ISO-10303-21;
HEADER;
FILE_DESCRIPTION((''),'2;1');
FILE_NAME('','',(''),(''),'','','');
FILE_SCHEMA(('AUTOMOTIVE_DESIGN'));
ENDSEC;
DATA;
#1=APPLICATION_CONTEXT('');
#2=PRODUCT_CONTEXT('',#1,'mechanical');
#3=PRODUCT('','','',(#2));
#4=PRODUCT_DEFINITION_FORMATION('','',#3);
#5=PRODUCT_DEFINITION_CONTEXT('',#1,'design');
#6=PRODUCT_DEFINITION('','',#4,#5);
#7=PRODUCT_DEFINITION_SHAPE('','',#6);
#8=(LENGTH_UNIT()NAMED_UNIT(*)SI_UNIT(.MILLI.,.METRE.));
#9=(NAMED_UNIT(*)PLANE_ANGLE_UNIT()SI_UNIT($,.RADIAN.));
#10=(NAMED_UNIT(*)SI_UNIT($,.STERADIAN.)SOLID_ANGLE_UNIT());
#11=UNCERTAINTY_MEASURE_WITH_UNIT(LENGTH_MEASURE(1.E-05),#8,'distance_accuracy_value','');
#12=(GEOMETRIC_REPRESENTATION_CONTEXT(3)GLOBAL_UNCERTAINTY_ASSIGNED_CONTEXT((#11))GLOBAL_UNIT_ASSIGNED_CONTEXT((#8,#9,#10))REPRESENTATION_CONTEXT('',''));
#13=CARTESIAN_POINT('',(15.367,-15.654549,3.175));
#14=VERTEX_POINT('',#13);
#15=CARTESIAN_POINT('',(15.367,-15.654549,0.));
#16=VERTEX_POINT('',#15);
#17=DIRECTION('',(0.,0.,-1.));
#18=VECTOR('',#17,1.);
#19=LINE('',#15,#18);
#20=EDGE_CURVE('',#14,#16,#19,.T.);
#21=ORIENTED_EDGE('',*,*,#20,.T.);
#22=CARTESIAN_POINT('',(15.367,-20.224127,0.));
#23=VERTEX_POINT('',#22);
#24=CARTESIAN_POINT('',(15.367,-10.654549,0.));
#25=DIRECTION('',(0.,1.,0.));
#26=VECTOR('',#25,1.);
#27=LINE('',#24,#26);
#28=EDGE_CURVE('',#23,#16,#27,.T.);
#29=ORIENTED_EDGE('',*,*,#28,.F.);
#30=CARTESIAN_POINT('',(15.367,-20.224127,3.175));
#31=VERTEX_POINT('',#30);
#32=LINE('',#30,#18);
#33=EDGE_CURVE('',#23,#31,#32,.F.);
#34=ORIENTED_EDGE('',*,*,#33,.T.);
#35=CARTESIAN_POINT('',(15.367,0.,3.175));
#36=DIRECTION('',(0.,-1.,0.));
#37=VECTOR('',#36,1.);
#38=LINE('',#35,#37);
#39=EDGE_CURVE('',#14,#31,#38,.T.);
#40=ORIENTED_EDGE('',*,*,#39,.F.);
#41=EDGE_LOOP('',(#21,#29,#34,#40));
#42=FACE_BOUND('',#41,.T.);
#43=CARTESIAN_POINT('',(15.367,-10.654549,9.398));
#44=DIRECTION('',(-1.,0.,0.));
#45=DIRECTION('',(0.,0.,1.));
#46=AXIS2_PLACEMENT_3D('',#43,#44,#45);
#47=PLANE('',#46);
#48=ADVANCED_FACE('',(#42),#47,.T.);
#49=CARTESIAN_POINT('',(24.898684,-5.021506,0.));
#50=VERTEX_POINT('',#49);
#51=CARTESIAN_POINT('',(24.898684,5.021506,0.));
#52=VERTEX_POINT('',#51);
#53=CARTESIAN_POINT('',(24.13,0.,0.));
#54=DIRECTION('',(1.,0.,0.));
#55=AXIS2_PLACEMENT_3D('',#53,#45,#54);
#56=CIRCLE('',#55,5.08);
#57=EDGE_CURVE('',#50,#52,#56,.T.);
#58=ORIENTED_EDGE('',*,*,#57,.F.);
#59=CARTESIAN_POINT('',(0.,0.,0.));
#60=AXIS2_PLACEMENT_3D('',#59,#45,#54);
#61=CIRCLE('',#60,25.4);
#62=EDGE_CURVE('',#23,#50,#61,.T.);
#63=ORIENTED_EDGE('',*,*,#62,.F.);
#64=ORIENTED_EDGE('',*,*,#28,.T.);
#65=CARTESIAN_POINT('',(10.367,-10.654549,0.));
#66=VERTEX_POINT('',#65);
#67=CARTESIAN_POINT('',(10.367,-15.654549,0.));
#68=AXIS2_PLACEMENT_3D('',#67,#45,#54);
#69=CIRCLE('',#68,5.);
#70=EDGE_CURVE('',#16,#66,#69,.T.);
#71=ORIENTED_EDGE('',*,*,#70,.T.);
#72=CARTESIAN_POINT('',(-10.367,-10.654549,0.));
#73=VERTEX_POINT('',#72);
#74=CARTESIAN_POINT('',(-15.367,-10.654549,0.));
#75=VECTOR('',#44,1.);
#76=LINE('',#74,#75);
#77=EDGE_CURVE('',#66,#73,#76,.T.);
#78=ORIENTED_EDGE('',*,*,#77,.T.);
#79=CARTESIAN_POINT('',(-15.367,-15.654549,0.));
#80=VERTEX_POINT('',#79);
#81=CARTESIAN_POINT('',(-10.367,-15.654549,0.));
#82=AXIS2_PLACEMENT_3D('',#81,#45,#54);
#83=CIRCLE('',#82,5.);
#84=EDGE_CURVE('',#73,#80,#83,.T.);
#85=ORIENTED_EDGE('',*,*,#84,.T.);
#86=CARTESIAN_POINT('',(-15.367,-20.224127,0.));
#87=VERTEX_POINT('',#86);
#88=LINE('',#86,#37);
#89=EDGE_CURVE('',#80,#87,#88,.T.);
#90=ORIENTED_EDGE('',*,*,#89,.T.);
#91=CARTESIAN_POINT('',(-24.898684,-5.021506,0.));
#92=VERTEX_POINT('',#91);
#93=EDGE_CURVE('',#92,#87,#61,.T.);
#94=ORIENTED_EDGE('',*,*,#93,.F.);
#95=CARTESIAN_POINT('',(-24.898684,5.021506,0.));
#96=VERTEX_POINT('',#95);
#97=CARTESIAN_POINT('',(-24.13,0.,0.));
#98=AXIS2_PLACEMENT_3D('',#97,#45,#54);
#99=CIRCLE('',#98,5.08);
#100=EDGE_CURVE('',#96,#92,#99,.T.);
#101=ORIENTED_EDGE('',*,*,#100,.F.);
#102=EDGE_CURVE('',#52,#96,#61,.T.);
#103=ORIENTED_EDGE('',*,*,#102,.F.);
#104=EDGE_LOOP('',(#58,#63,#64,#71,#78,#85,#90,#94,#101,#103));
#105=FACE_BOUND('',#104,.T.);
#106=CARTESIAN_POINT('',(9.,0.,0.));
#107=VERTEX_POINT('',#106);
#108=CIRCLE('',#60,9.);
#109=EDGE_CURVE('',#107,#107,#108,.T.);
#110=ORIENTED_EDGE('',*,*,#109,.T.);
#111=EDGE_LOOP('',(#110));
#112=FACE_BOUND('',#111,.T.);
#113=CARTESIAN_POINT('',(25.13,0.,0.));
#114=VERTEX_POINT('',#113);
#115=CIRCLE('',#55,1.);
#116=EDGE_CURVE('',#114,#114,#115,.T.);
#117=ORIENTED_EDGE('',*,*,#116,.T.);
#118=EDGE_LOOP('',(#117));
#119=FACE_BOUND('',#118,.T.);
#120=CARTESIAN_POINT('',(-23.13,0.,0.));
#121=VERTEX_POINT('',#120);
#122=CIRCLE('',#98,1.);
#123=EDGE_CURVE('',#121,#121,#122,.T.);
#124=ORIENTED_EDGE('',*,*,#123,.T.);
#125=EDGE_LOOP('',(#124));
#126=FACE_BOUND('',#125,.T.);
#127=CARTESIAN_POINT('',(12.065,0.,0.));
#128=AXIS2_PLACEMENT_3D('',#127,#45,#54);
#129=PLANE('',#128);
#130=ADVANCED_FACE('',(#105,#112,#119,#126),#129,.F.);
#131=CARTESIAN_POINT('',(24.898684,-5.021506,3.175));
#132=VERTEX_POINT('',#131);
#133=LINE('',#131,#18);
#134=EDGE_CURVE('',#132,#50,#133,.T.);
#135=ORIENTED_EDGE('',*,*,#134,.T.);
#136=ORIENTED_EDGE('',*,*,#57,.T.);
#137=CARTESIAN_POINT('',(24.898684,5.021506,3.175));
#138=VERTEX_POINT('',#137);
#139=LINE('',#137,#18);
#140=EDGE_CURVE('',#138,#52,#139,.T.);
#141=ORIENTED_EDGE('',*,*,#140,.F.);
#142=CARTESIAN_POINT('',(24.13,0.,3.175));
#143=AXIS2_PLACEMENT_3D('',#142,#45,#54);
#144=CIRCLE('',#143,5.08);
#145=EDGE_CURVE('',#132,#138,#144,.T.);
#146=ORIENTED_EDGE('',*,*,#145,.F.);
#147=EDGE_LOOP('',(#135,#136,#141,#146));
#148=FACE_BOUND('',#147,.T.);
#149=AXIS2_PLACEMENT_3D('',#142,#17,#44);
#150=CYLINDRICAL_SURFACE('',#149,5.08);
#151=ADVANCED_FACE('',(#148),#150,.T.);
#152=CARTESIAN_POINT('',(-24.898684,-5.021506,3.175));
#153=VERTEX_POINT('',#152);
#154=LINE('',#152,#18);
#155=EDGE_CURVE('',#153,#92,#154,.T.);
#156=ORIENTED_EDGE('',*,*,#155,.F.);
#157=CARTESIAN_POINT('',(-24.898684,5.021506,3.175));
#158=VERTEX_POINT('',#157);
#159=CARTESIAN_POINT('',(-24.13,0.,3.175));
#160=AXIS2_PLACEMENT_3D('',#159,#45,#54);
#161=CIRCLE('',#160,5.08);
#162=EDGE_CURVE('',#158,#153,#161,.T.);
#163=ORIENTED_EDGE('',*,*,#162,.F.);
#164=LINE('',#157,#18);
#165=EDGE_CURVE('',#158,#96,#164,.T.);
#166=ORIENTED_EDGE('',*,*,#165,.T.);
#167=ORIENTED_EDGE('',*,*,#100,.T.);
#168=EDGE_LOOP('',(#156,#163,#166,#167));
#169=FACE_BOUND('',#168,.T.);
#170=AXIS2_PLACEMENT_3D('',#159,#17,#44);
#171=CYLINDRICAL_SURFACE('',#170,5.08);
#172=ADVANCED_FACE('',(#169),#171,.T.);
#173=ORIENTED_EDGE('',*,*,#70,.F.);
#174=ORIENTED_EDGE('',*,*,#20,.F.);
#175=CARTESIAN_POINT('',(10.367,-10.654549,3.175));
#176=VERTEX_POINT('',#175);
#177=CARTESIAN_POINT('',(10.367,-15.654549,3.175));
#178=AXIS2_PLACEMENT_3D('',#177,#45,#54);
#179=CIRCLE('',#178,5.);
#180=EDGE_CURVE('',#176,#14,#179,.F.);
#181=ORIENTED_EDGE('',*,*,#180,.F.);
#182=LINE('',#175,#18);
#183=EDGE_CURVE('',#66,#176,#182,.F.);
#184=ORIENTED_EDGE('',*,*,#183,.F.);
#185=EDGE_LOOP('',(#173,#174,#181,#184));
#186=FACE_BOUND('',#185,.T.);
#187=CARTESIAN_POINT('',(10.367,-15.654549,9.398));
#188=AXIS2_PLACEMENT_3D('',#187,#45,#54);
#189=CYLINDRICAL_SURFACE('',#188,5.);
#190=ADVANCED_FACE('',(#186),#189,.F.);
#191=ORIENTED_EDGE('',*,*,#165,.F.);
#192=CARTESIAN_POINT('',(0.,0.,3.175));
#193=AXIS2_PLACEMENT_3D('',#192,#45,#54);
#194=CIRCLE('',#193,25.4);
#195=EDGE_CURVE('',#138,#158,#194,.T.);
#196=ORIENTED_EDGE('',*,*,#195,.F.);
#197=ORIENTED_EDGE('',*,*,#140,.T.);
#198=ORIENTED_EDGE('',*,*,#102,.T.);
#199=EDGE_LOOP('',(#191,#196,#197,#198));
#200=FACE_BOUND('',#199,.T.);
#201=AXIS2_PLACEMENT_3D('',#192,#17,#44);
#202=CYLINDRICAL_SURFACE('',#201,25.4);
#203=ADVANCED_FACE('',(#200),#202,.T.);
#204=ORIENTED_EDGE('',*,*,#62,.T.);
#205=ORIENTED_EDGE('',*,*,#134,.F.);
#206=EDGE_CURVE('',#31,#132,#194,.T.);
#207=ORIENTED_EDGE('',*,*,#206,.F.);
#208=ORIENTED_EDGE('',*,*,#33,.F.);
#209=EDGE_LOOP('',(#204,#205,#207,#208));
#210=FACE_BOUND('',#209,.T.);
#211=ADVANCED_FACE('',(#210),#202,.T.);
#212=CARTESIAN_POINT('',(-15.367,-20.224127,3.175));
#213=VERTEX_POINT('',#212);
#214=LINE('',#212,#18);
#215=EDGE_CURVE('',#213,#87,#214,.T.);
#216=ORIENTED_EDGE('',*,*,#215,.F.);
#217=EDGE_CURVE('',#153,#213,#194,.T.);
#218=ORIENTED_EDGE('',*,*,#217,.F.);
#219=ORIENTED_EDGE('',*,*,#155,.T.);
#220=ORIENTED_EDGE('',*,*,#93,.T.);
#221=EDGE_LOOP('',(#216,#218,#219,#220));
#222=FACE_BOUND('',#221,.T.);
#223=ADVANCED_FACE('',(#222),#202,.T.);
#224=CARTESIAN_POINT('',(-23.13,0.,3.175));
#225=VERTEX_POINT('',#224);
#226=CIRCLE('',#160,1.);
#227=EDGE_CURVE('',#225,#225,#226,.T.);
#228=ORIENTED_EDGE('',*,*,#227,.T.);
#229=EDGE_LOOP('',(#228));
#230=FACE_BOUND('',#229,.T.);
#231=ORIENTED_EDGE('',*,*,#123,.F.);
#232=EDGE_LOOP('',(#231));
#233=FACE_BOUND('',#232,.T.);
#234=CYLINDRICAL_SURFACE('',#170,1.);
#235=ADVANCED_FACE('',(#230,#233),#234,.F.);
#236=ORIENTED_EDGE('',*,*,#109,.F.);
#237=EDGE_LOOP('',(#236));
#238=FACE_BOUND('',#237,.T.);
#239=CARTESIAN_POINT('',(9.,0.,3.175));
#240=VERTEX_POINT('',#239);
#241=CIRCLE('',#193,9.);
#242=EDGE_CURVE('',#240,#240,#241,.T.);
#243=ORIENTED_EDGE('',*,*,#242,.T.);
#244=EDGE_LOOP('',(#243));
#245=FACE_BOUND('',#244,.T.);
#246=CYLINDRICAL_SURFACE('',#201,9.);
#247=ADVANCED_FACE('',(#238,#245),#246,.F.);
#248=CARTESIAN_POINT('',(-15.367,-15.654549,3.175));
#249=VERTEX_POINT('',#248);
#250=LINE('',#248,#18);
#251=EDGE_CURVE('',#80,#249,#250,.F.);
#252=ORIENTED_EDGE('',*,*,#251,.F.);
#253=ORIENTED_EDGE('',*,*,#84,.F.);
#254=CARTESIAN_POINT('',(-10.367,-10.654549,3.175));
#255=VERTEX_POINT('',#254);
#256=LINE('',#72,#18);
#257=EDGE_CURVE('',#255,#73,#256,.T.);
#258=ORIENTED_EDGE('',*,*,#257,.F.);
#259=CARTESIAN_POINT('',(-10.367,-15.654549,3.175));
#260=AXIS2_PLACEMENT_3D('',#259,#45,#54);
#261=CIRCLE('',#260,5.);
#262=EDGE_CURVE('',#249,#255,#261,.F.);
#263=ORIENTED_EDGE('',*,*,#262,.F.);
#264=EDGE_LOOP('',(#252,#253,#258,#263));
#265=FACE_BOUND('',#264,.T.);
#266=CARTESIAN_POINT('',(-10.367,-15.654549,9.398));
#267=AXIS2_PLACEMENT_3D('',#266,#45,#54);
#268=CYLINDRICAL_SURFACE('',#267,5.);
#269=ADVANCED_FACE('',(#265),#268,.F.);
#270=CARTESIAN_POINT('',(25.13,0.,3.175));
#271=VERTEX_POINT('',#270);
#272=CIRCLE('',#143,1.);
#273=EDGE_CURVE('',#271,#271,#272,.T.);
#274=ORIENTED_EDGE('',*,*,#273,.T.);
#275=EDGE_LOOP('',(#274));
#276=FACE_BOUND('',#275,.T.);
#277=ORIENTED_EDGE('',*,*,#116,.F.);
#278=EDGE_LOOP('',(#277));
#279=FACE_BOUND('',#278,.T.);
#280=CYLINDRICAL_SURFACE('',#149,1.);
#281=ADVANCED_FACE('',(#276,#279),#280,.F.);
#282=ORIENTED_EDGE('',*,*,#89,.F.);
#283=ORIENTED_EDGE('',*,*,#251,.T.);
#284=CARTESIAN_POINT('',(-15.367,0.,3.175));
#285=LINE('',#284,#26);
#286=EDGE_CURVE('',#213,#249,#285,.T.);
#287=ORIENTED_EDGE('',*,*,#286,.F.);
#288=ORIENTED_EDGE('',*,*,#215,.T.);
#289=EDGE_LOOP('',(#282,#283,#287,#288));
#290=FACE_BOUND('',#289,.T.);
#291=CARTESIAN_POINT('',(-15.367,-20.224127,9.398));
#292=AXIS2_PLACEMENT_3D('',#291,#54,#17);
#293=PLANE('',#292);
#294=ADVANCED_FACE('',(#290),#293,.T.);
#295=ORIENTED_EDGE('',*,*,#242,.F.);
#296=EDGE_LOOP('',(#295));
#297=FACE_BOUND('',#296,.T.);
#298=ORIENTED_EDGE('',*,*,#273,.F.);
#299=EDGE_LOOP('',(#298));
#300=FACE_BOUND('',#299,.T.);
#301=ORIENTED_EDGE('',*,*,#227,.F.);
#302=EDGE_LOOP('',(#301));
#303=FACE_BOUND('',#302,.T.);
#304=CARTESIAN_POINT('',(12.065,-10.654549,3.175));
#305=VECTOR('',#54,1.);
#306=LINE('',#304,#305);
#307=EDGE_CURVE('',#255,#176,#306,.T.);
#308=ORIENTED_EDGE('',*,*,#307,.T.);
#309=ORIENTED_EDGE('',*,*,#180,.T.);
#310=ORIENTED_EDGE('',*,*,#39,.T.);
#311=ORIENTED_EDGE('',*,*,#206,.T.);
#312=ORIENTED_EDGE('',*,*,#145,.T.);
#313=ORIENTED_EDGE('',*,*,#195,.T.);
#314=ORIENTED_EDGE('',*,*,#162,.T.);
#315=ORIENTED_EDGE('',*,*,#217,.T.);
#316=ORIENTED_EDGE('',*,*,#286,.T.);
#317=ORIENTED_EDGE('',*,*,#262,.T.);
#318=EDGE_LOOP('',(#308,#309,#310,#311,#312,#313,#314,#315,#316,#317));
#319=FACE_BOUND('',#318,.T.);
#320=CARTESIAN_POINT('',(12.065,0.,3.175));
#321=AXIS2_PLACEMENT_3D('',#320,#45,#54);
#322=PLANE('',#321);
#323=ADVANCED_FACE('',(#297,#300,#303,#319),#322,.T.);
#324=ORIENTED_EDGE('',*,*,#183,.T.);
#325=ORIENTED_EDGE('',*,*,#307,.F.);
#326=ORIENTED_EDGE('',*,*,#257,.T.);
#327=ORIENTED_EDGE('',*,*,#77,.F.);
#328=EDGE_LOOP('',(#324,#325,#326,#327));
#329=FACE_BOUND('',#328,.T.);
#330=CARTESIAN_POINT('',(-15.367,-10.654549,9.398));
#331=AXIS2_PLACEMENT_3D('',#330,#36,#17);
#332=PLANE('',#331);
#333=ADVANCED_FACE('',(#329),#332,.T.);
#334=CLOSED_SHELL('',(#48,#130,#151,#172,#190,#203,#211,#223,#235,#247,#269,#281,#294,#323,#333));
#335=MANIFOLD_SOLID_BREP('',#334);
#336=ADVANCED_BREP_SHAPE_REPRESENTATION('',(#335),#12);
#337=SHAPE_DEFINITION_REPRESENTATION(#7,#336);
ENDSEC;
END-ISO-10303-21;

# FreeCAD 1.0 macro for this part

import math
import FreeCAD as App
import Part
import Sketcher
Q = App.Units.Quantity


def edges_at(feature, points):
    """Names of the edges that pass closest to the given points."""
    edges = feature.Shape.Edges
    near = lambda p: min(range(len(edges)), key=lambda i: edges[i].distToShape(Part.Vertex(*p))[0])
    return sorted({f"Edge{near(p) + 1}" for p in points})

doc = App.newDocument("Part")
params = doc.addObject("Spreadsheet::Sheet", "Params")
for row, (alias, value) in enumerate([
    ("sketch1_radius", "1 in"),
    ("sketch1_radius2", "0.2 in"),
    ("pad1_length", "0.125 in"),
    ("sketch2_radius", "1 in"),
    ("sketch2_width", "1.21 in"),
    ("pocket1_length", "0.37 in"),
    ("fillet_radius", "5 mm"),
], start=1):
    params.set(f"A{row}", alias)
    params.set(f"B{row}", "=" + value)
    params.setAlias(f"B{row}", alias)

body = doc.addObject("PartDesign::Body", "Body")

sketch1 = body.newObject("Sketcher::SketchObject", "Sketch")
sketch1.AttachmentSupport = (doc.getObject("XY_Plane"), [""])
sketch1.MapMode = "FlatFace"
sketch1.addGeometry(Part.ArcOfCircle(Part.Circle(App.Vector(24.1, 0, 0), App.Vector(0, 0, 1), 5.1), math.radians(-81), math.radians(81)), False)
sketch1.addGeometry(Part.ArcOfCircle(Part.Circle(App.Vector(0, 0, 0), App.Vector(0, 0, 1), 25.4), math.radians(11), math.radians(169)), False)
sketch1.addGeometry(Part.ArcOfCircle(Part.Circle(App.Vector(-24.1, 0, 0), App.Vector(0, 0, 1), 5.1), math.radians(99), math.radians(261)), False)
sketch1.addGeometry(Part.ArcOfCircle(Part.Circle(App.Vector(0, 0, 0), App.Vector(0, 0, 1), 25.4), math.radians(-169), math.radians(-11)), False)
sketch1.addGeometry(Part.Circle(App.Vector(-24.1, 0, 0), App.Vector(0, 0, 1), 1), False)
sketch1.addGeometry(Part.Circle(App.Vector(0, 0, 0), App.Vector(0, 0, 1), 9), False)
sketch1.addGeometry(Part.Circle(App.Vector(24.1, 0, 0), App.Vector(0, 0, 1), 1), False)
sketch1.addConstraint(Sketcher.Constraint("Coincident", 0, 2, 1, 1))
sketch1.addConstraint(Sketcher.Constraint("Coincident", 1, 2, 2, 1))
sketch1.addConstraint(Sketcher.Constraint("Coincident", 2, 2, 3, 1))
sketch1.addConstraint(Sketcher.Constraint("Coincident", 3, 2, 0, 1))
sketch1.addConstraint(Sketcher.Constraint("Coincident", 1, 3, -1, 1))
sketch1.addConstraint(Sketcher.Constraint("Coincident", 3, 3, -1, 1))
sketch1.addConstraint(Sketcher.Constraint("Coincident", 5, 3, -1, 1))
sketch1.addConstraint(Sketcher.Constraint("Coincident", 4, 3, 2, 3))
sketch1.addConstraint(Sketcher.Constraint("Coincident", 6, 3, 0, 3))
sketch1.addConstraint(Sketcher.Constraint("Equal", 0, 2))
sketch1.addConstraint(Sketcher.Constraint("Equal", 1, 3))
sketch1.addConstraint(Sketcher.Constraint("Equal", 4, 6))
sketch1.addConstraint(Sketcher.Constraint("Symmetric", 0, 3, 2, 3, -1, 1))
sketch1.addConstraint(Sketcher.Constraint("PointOnObject", 0, 3, -1))
sketch1.addConstraint(Sketcher.Constraint("Radius", 1, Q("1 in")))
sketch1.addConstraint(Sketcher.Constraint("Radius", 0, Q("0.2 in")))
sketch1.addConstraint(Sketcher.Constraint("DistanceX", 2, 3, 0, 3, Q("1.9 in")))
sketch1.addConstraint(Sketcher.Constraint("Diameter", 4, Q("2 mm")))
sketch1.addConstraint(Sketcher.Constraint("Diameter", 5, Q("18 mm")))
sketch1.setExpression("Constraints[14]", "Params.sketch1_radius")
sketch1.setExpression("Constraints[15]", "Params.sketch1_radius2")
pad1 = body.newObject("PartDesign::Pad", "Pad")
pad1.Profile = sketch1
pad1.setExpression("Length", "Params.pad1_length")

sketch2 = body.newObject("Sketcher::SketchObject", "Sketch001")
sketch2.AttachmentSupport = (doc.getObject("XY_Plane"), [""])
sketch2.MapMode = "FlatFace"
sketch2.addGeometry(Part.LineSegment(App.Vector(-15, -11, 0), App.Vector(-15, -20, 0)), False)
sketch2.addGeometry(Part.ArcOfCircle(Part.Circle(App.Vector(0, 0, 0), App.Vector(0, 0, 1), 25), math.radians(-127), math.radians(-53)), False)
sketch2.addGeometry(Part.LineSegment(App.Vector(15, -20, 0), App.Vector(15, -11, 0)), False)
sketch2.addGeometry(Part.LineSegment(App.Vector(15, -11, 0), App.Vector(-15, -11, 0)), False)
sketch2.addConstraint(Sketcher.Constraint("Coincident", 0, 2, 1, 1))
sketch2.addConstraint(Sketcher.Constraint("Coincident", 1, 2, 2, 1))
sketch2.addConstraint(Sketcher.Constraint("Coincident", 2, 2, 3, 1))
sketch2.addConstraint(Sketcher.Constraint("Coincident", 3, 2, 0, 1))
sketch2.addConstraint(Sketcher.Constraint("Vertical", 0))
sketch2.addConstraint(Sketcher.Constraint("Vertical", 2))
sketch2.addConstraint(Sketcher.Constraint("Horizontal", 3))
sketch2.addConstraint(Sketcher.Constraint("Coincident", 1, 3, -1, 1))
sketch2.addConstraint(Sketcher.Constraint("Horizontal", 0, 2, 1, 2))
sketch2.addConstraint(Sketcher.Constraint("Radius", 1, Q("1 in")))
sketch2.addConstraint(Sketcher.Constraint("DistanceX", 3, 2, 3, 1, Q("1.21 in")))
sketch2.addConstraint(Sketcher.Constraint("DistanceY", 0, 2, 0, 1, Q("9.569578 mm")))
sketch2.setExpression("Constraints[9]", "Params.sketch2_radius")
sketch2.setExpression("Constraints[10]", "Params.sketch2_width")
pocket1 = body.newObject("PartDesign::Pocket", "Pocket")
pocket1.Profile = sketch2
pocket1.setExpression("Length", "Params.pocket1_length")
pocket1.Reversed = True
doc.recompute()

fillet = body.newObject("PartDesign::Fillet", "Fillet")
fillet.Base = (pocket1, edges_at(pocket1, [(15.367, -10.655, 1.587), (-15.367, -10.655, 1.587)]))
fillet.setExpression("Radius", "Params.fillet_radius")

doc.recompute()
